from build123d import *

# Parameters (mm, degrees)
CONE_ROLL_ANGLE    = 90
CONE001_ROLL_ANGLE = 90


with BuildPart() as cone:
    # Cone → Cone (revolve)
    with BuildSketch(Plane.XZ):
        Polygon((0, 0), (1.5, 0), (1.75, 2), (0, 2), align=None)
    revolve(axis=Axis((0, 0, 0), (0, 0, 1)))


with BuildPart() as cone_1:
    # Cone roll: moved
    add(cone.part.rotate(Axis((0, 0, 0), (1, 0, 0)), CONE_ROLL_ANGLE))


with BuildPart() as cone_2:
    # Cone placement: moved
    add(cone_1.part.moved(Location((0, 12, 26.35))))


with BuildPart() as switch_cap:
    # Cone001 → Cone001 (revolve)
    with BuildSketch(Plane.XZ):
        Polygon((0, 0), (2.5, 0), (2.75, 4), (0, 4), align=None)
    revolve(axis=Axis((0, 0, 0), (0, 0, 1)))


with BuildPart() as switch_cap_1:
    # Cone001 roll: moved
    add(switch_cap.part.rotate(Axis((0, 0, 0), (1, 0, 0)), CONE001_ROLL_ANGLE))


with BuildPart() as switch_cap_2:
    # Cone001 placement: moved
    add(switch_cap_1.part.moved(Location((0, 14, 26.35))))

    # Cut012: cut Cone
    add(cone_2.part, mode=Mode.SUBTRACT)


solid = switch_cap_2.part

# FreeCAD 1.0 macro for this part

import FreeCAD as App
import Part
import Sketcher
Q = App.Units.Quantity


def add_polygon(sketch, points):
    """Adds a closed chain of lines whose ends are joined by coincident constraints."""
    first, n = sketch.GeometryCount, len(points)
    for a, b in zip(points, points[1:] + points[:1]):
        sketch.addGeometry(Part.LineSegment(App.Vector(*a, 0), App.Vector(*b, 0)), False)
    for i in range(n):
        sketch.addConstraint(Sketcher.Constraint("Coincident", first + i, 2, first + (i + 1) % n, 1))

doc = App.newDocument("Part")
body = doc.addObject("PartDesign::Body", "Body")

# Sketch on XZ plane
sketch1 = doc.addObject("Sketcher::SketchObject", "Sketch")
body.addObject(sketch1)
sketch1.AttachmentSupport = (doc.XZ_Plane, [""])
sketch1.MapMode = "FlatFace"
add_polygon(sketch1, [(0, 0), (1.5, 0), (1.8, 2), (0, 2)])  # lines 0-3
sketch1.addConstraint([
    Sketcher.Constraint("Horizontal", 0),
    Sketcher.Constraint("Horizontal", 2),
    Sketcher.Constraint("Vertical", 3),
    Sketcher.Constraint("Coincident", 3, 2, -1, 1),
    Sketcher.Constraint("DistanceY", 3, 2, 3, 1, Q("2 mm")),
    Sketcher.Constraint("DistanceX", 0, 1, 0, 2, Q("1.5 mm")),
    Sketcher.Constraint("DistanceX", 2, 2, 2, 1, Q("1.75 mm")),
])
revolution = doc.addObject("PartDesign::Revolution", "Revolution")
body.addObject(revolution)
revolution.Profile = sketch1
revolution.ReferenceAxis = (sketch1, ["V_Axis"])
revolution.Angle = 360
body2 = doc.addObject("PartDesign::Body", "Body001")
doc.recompute()

body.Placement = App.Placement(App.Vector(0, 0, 0), App.Rotation(App.Vector(1, 0, 0), 90))
boolean = doc.addObject("PartDesign::Boolean", "Boolean")
body2.addObject(boolean)
boolean.Type = "Fuse"
boolean.addObjects([body])
body3 = doc.addObject("PartDesign::Body", "Body002")
doc.recompute()

body2.Placement = App.Placement(App.Vector(0, 12, 26.35), App.Rotation(App.Vector(0, 0, 1), 0))
boolean2 = doc.addObject("PartDesign::Boolean", "Boolean001")
body3.addObject(boolean2)
boolean2.Type = "Fuse"
boolean2.addObjects([body2])
body4 = doc.addObject("PartDesign::Body", "Body003")

# Sketch on XZ plane
sketch2 = doc.addObject("Sketcher::SketchObject", "Sketch001")
body4.addObject(sketch2)
sketch2.AttachmentSupport = (doc.getObject("XZ_Plane003"), [""])
sketch2.MapMode = "FlatFace"
add_polygon(sketch2, [(0, 0), (2.5, 0), (2.8, 4), (0, 4)])  # lines 0-3
sketch2.addConstraint([
    Sketcher.Constraint("Horizontal", 0),
    Sketcher.Constraint("Horizontal", 2),
    Sketcher.Constraint("Vertical", 3),
    Sketcher.Constraint("Coincident", 3, 2, -1, 1),
    Sketcher.Constraint("DistanceY", 3, 2, 3, 1, Q("4 mm")),
    Sketcher.Constraint("DistanceX", 0, 1, 0, 2, Q("2.5 mm")),
    Sketcher.Constraint("DistanceX", 2, 2, 2, 1, Q("2.75 mm")),
])
revolution2 = doc.addObject("PartDesign::Revolution", "Revolution001")
body4.addObject(revolution2)
revolution2.Profile = sketch2
revolution2.ReferenceAxis = (sketch2, ["V_Axis"])
revolution2.Angle = 360
body5 = doc.addObject("PartDesign::Body", "Body004")
doc.recompute()

body4.Placement = App.Placement(App.Vector(0, 0, 0), App.Rotation(App.Vector(1, 0, 0), 90))
boolean3 = doc.addObject("PartDesign::Boolean", "Boolean002")
body5.addObject(boolean3)
boolean3.Type = "Fuse"
boolean3.addObjects([body4])
body6 = doc.addObject("PartDesign::Body", "Body005")
doc.recompute()

body5.Placement = App.Placement(App.Vector(0, 14, 26.35), App.Rotation(App.Vector(0, 0, 1), 0))
boolean4 = doc.addObject("PartDesign::Boolean", "Boolean003")
body6.addObject(boolean4)
boolean4.Type = "Fuse"
boolean4.addObjects([body5])
doc.recompute()

boolean5 = doc.addObject("PartDesign::Boolean", "Boolean004")
body6.addObject(boolean5)
boolean5.Type = "Cut"
boolean5.addObjects([body3])

doc.recompute()
